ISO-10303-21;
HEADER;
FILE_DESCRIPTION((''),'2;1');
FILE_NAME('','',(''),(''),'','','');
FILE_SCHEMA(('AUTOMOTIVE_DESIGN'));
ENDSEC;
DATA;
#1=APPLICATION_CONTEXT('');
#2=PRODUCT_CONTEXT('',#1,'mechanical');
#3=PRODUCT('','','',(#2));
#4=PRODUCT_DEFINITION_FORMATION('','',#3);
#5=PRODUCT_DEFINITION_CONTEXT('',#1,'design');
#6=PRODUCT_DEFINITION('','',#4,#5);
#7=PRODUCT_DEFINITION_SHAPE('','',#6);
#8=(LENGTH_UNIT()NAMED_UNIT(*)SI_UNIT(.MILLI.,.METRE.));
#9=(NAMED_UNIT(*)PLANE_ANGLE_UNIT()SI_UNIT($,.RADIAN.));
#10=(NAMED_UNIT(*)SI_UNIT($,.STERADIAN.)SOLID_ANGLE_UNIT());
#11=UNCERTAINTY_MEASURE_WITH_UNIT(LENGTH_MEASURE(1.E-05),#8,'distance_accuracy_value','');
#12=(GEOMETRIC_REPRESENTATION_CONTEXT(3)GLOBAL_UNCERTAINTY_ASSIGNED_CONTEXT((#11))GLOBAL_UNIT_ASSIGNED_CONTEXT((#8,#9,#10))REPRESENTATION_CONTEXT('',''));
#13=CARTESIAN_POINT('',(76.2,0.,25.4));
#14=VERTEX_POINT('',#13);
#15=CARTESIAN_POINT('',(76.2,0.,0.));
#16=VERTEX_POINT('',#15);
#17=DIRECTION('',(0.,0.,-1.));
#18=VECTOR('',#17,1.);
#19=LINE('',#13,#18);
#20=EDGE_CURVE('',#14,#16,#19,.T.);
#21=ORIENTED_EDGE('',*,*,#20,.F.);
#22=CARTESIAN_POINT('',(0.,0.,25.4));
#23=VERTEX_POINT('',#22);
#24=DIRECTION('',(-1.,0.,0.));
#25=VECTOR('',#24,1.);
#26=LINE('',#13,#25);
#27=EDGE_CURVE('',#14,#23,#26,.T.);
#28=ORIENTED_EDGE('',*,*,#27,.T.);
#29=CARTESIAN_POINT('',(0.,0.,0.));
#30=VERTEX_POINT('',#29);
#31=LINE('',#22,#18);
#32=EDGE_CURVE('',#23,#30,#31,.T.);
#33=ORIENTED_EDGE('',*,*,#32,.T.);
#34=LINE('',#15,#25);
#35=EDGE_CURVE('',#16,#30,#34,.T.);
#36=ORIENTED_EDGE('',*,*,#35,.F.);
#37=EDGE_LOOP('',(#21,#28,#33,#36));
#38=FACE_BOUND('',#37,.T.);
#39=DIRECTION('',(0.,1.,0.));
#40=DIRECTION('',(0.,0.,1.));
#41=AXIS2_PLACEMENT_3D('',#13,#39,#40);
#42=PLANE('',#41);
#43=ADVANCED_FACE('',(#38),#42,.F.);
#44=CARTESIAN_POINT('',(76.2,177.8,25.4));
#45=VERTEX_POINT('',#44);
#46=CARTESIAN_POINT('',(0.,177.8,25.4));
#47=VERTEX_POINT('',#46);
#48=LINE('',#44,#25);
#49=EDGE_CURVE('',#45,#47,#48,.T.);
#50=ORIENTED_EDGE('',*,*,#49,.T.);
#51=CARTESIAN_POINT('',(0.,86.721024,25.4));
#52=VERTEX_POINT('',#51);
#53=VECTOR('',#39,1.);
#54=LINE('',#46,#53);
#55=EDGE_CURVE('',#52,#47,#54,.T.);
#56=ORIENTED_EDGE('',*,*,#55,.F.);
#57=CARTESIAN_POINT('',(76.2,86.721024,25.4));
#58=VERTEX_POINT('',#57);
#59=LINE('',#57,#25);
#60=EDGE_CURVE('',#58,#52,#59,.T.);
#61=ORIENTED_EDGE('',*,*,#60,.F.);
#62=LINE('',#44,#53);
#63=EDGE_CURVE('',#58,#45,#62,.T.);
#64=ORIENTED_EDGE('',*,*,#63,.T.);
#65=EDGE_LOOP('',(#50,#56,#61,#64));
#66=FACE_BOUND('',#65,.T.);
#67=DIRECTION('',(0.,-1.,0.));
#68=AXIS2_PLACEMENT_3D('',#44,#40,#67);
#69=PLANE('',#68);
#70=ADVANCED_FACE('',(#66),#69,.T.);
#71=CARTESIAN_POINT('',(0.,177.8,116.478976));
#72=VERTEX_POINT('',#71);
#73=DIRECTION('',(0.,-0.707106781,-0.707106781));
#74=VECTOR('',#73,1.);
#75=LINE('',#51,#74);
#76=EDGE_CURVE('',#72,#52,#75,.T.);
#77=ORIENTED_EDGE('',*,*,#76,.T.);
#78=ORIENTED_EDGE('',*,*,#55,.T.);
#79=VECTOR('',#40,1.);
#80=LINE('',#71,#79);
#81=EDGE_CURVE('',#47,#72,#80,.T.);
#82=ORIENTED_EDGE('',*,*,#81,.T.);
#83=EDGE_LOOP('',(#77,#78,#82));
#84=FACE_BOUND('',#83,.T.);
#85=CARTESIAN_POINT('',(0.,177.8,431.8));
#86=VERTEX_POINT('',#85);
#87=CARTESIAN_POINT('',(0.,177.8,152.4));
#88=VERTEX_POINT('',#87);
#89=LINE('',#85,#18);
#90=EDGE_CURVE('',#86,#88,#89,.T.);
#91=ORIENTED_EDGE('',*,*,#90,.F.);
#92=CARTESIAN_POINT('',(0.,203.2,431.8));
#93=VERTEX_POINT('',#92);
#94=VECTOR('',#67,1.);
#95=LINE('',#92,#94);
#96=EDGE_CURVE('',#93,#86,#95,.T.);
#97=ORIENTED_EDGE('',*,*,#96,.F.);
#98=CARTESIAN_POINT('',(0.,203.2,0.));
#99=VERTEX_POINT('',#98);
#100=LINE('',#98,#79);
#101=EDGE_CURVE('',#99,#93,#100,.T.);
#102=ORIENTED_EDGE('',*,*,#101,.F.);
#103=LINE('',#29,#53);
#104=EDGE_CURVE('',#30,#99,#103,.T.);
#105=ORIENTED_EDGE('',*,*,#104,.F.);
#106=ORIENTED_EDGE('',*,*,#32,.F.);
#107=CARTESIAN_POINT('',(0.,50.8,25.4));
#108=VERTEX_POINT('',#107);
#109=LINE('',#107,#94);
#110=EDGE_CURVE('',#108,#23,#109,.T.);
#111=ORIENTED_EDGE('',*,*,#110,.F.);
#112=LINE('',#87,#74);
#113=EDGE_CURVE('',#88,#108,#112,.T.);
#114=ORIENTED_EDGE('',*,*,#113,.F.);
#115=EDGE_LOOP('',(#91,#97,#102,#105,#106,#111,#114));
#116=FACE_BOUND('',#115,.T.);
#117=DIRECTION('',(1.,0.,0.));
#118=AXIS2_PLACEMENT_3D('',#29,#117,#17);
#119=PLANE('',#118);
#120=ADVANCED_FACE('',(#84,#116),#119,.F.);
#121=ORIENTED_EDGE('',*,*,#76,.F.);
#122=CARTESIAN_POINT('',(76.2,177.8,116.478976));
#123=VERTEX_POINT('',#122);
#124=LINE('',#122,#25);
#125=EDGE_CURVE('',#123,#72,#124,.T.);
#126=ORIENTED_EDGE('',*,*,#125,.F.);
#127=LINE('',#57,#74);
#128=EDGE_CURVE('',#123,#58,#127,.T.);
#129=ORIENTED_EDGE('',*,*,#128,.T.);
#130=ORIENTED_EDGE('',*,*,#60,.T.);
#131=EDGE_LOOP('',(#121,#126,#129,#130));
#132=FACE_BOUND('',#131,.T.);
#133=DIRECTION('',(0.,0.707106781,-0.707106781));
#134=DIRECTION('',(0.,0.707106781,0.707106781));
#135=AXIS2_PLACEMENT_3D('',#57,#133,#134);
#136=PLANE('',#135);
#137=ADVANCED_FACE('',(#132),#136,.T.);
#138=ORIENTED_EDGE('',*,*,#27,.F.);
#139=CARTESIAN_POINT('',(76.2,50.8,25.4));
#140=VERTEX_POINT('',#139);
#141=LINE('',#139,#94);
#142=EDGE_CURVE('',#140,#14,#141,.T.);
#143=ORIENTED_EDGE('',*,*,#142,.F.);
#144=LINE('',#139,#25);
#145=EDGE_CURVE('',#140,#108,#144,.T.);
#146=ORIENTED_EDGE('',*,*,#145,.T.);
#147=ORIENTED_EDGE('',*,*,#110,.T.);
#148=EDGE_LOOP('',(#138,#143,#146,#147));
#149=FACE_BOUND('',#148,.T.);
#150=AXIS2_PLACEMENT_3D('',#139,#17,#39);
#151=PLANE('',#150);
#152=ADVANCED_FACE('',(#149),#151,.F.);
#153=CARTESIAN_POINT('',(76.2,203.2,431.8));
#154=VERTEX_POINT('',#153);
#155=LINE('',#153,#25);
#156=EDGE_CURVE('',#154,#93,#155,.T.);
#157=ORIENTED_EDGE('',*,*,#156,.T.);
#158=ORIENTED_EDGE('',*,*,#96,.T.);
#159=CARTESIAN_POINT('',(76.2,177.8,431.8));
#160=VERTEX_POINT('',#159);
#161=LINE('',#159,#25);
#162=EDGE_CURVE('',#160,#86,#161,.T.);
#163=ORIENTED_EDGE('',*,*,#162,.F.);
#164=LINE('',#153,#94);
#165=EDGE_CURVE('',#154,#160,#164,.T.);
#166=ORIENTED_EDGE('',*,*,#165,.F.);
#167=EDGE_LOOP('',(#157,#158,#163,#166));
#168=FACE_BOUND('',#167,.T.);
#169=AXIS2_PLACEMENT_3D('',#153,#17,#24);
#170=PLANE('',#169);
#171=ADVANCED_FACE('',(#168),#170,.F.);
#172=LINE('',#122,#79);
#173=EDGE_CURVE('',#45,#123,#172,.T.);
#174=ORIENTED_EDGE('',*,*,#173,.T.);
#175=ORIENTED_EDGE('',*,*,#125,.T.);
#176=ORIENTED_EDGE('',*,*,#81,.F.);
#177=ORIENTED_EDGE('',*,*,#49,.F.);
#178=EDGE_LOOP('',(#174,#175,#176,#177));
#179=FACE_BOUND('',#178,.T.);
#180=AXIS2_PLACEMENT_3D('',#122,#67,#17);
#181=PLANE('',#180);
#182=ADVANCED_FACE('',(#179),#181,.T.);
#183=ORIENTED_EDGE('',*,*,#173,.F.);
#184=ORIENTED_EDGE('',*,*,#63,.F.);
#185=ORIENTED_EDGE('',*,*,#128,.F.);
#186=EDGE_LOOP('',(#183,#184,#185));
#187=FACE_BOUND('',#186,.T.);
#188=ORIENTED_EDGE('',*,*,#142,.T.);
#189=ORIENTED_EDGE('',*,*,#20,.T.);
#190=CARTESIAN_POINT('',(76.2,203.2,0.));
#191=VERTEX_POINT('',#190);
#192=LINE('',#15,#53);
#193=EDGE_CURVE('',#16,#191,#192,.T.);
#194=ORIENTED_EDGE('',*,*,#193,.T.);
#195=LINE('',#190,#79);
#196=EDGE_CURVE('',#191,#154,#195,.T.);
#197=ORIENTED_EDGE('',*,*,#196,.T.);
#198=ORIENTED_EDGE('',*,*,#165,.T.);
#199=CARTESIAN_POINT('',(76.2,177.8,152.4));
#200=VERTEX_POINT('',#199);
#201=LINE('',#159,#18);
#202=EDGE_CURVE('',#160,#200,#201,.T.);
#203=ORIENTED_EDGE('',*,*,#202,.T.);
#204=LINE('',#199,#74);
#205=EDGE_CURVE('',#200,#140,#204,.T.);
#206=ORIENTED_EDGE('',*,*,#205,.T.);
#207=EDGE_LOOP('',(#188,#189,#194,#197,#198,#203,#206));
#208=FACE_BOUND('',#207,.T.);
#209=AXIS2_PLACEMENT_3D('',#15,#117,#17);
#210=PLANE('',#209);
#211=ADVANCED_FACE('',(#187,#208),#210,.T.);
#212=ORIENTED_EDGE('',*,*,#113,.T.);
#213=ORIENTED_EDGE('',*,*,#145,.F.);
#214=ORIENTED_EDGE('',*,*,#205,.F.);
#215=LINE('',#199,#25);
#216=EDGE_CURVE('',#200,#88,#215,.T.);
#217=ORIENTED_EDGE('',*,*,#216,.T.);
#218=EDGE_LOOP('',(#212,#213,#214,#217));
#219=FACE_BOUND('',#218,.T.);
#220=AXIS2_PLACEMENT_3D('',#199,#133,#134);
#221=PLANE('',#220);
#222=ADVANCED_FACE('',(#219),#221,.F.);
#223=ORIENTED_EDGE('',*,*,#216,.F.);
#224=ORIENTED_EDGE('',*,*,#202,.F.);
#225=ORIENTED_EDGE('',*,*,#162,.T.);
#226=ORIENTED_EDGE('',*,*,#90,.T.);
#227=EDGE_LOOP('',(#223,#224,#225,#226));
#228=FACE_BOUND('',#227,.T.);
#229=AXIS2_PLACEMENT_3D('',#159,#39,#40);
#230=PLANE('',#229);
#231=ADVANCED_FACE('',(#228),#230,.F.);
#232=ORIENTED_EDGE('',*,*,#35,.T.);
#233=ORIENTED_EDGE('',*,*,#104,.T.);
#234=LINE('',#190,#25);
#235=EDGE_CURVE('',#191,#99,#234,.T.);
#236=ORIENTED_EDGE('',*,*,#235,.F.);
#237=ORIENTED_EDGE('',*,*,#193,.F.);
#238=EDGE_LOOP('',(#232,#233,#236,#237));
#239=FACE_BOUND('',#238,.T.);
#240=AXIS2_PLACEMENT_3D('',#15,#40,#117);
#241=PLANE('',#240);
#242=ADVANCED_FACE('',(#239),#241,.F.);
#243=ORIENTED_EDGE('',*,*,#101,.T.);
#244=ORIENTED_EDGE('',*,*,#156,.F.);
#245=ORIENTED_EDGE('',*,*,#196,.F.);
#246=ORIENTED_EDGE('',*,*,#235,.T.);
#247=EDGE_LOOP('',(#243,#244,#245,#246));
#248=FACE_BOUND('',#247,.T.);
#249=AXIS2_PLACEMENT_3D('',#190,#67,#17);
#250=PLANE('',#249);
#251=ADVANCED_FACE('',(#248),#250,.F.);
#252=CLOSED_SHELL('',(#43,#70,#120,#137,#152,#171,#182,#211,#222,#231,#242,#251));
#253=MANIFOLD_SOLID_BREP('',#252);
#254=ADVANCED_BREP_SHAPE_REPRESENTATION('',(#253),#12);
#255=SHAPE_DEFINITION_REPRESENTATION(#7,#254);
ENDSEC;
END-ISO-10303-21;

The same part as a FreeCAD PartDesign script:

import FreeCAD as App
import Part
import Sketcher
from FreeCAD import Vector
Q = App.Units.Quantity

doc = App.newDocument("Part")
params = doc.addObject("Spreadsheet::Sheet", "Params")
for row, (alias, value) in enumerate([
    ("sketch1_width", "8 in"),
    ("sketch1_width2", "1 in"),
    ("sketch1_width3", "2 in"),
    ("sketch1_height", "17 in"),
    ("pad1_length", "3 in"),
], start=1):
    params.set(f"A{row}", alias)
    params.set(f"B{row}", "=" + value)
    params.setAlias(f"B{row}", alias)

body = doc.addObject("PartDesign::Body", "Body")

# Sketch on YZ plane
sketch1 = body.newObject("Sketcher::SketchObject", "Sketch")
sketch1.AttachmentSupport = (doc.getObject("YZ_Plane"), [""])
sketch1.MapMode = "FlatFace"
sketch1.addGeometry([
    Part.LineSegment(Vector(0, 0, 0), Vector(203, 0, 0)),  # 0
    Part.LineSegment(Vector(203, 0, 0), Vector(203, 432, 0)),  # 1
    Part.LineSegment(Vector(203, 432, 0), Vector(178, 432, 0)),  # 2
    Part.LineSegment(Vector(178, 432, 0), Vector(178, 152, 0)),  # 3
    Part.LineSegment(Vector(178, 152, 0), Vector(51, 25, 0)),  # 4
    Part.LineSegment(Vector(51, 25, 0), Vector(0, 25, 0)),  # 5
    Part.LineSegment(Vector(0, 25, 0), Vector(0, 0, 0)),  # 6
    Part.LineSegment(Vector(87, 25, 0), Vector(178, 116, 0)),  # 7
    Part.LineSegment(Vector(178, 116, 0), Vector(178, 25, 0)),  # 8
    Part.LineSegment(Vector(178, 25, 0), Vector(87, 25, 0)),  # 9
], False)
sketch1.addConstraint([
    Sketcher.Constraint("Coincident", 0, 2, 1, 1),
    Sketcher.Constraint("Coincident", 1, 2, 2, 1),
    Sketcher.Constraint("Coincident", 2, 2, 3, 1),
    Sketcher.Constraint("Coincident", 3, 2, 4, 1),
    Sketcher.Constraint("Coincident", 4, 2, 5, 1),
    Sketcher.Constraint("Coincident", 5, 2, 6, 1),
    Sketcher.Constraint("Coincident", 6, 2, 0, 1),
    Sketcher.Constraint("Coincident", 7, 2, 8, 1),
    Sketcher.Constraint("Coincident", 8, 2, 9, 1),
    Sketcher.Constraint("Coincident", 9, 2, 7, 1),
    Sketcher.Constraint("Horizontal", 0),
    Sketcher.Constraint("Vertical", 1),
    Sketcher.Constraint("Horizontal", 2),
    Sketcher.Constraint("Vertical", 3),
    Sketcher.Constraint("Horizontal", 5),
    Sketcher.Constraint("Vertical", 6),
    Sketcher.Constraint("Vertical", 8),
    Sketcher.Constraint("Horizontal", 9),
    Sketcher.Constraint("Coincident", 6, 2, -1, 1),
    Sketcher.Constraint("Parallel", 4, 7),
    Sketcher.Constraint("Horizontal", 5, 2, 8, 2),
    Sketcher.Constraint("Vertical", 3, 2, 7, 2),
    Sketcher.Constraint("Equal", 2, 6),
    Sketcher.Constraint("Equal", 9, 8),
    Sketcher.Constraint("DistanceX", 0, 1, 0, 2, Q("8 in")),
    Sketcher.Constraint("DistanceX", 2, 2, 2, 1, Q("1 in")),
    Sketcher.Constraint("DistanceX", 5, 2, 5, 1, Q("2 in")),
    Sketcher.Constraint("DistanceY", 1, 1, 1, 2, Q("17 in")),
    Sketcher.Constraint("DistanceX", 9, 2, 9, 1, 91.078976),
])
sketch1.setExpression("Constraints[24]", "Params.sketch1_width")
sketch1.setExpression("Constraints[25]", "Params.sketch1_width2")
sketch1.setExpression("Constraints[26]", "Params.sketch1_width3")
sketch1.setExpression("Constraints[27]", "Params.sketch1_height")
pad1 = body.newObject("PartDesign::Pad", "Pad")
pad1.Profile = sketch1
pad1.setExpression("Length", "Params.pad1_length")

doc.recompute()
